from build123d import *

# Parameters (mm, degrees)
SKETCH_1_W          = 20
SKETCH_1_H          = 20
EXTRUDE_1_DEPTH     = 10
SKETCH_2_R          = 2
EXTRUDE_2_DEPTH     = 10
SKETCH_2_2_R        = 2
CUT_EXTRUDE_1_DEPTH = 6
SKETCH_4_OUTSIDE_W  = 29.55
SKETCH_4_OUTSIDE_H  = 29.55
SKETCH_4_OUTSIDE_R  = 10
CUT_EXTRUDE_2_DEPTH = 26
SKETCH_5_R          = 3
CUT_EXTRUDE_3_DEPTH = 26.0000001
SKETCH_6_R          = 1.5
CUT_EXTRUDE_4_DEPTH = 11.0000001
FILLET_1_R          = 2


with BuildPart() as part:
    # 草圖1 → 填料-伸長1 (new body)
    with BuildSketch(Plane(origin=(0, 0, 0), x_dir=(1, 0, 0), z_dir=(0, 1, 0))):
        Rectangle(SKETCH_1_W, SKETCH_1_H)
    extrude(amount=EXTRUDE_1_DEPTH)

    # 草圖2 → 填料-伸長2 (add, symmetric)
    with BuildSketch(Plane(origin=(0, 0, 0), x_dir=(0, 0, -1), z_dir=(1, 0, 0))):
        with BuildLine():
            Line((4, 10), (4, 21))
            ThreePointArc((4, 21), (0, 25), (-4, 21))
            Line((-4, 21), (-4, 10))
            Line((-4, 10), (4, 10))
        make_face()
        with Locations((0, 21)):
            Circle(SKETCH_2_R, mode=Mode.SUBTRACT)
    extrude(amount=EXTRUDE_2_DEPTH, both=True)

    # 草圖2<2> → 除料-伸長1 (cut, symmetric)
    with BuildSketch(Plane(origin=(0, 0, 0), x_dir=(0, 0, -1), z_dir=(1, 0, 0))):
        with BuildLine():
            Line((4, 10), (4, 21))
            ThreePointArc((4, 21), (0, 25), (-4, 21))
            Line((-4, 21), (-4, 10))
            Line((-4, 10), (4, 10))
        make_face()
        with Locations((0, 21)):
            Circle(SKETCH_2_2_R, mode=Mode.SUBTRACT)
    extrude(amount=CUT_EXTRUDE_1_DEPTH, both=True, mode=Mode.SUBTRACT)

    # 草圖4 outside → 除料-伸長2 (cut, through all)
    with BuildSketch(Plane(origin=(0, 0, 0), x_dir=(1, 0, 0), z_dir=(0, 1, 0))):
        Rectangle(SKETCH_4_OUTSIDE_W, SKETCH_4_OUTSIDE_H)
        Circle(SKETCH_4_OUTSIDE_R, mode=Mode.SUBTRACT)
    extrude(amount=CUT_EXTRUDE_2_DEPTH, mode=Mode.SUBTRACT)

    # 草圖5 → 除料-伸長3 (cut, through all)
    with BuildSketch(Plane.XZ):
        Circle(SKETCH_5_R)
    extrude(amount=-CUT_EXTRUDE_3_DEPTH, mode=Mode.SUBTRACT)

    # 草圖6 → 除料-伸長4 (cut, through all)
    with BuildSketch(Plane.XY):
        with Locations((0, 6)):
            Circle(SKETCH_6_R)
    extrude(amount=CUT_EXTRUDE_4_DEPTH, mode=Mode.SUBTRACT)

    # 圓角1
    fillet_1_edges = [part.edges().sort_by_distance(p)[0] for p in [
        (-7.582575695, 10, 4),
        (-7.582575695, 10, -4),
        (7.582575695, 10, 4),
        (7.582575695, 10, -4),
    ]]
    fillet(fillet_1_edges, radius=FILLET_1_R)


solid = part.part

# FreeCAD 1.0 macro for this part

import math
import FreeCAD as App
import Part
import Sketcher
from FreeCAD import Vector
Q = App.Units.Quantity


def edges_at(feature, points):
    """Names of the edges that pass closest to the given points."""
    edges = feature.Shape.Edges
    near = lambda p: min(range(len(edges)), key=lambda i: edges[i].distToShape(Part.Vertex(*p))[0])
    return sorted({f"Edge{near(p) + 1}" for p in points})


def add_polygon(sketch, points):
    """Adds a closed chain of lines whose ends are joined by coincident constraints."""
    first, n = sketch.GeometryCount, len(points)
    for a, b in zip(points, points[1:] + points[:1]):
        sketch.addGeometry(Part.LineSegment(App.Vector(*a, 0), App.Vector(*b, 0)), False)
    for i in range(n):
        sketch.addConstraint(Sketcher.Constraint("Coincident", first + i, 2, first + (i + 1) % n, 1))

doc = App.newDocument("Part")
body = doc.addObject("PartDesign::Body", "Body")

# Sketch on XZ plane
sketch1 = doc.addObject("Sketcher::SketchObject", "Sketch")
body.addObject(sketch1)
sketch1.AttachmentSupport = (doc.XZ_Plane, [""])
sketch1.MapMode = "FlatFace"
add_polygon(sketch1, [(-10, -10), (-10, 10), (10, 10), (10, -10)])  # lines 0-3
sketch1.addConstraint(Sketcher.Constraint("Vertical", 0))
sketch1.addConstraint(Sketcher.Constraint("Horizontal", 1))
sketch1.addConstraint(Sketcher.Constraint("Vertical", 2))
sketch1.addConstraint(Sketcher.Constraint("Horizontal", 3))
sketch1.addConstraint(Sketcher.Constraint("Symmetric", 0, 2, 2, 2, -1, 1))
sketch1.addConstraint(Sketcher.Constraint("Equal", 3, 0))
sketch1.addConstraint(Sketcher.Constraint("DistanceX", 1, 1, 1, 2, Q("20 mm")))
pad1 = doc.addObject("PartDesign::Pad", "Pad")
body.addObject(pad1)
pad1.Profile = sketch1
pad1.Length = 10
pad1.Reversed = True

# Sketch on YZ plane
sketch2 = doc.addObject("Sketcher::SketchObject", "Sketch001")
body.addObject(sketch2)
sketch2.AttachmentSupport = (doc.YZ_Plane, [""])
sketch2.MapMode = "FlatFace"
sketch2.addGeometry(Part.LineSegment(Vector(10, -4, 0), Vector(21, -4, 0)), False)
sketch2.addGeometry(Part.ArcOfCircle(Part.Circle(Vector(21, 0, 0), Vector(0, 0, 1), 4), math.radians(-90), math.radians(90)), False)
sketch2.addGeometry(Part.LineSegment(Vector(21, 4, 0), Vector(10, 4, 0)), False)
sketch2.addGeometry(Part.LineSegment(Vector(10, 4, 0), Vector(10, -4, 0)), False)
sketch2.addGeometry(Part.Circle(Vector(21, 0, 0), Vector(0, 0, 1), 2), False)
sketch2.addConstraint(Sketcher.Constraint("Tangent", 0, 2, 1, 1))
sketch2.addConstraint(Sketcher.Constraint("Tangent", 1, 2, 2, 1))
sketch2.addConstraint(Sketcher.Constraint("Coincident", 2, 2, 3, 1))
sketch2.addConstraint(Sketcher.Constraint("Coincident", 3, 2, 0, 1))
sketch2.addConstraint(Sketcher.Constraint("Horizontal", 0))
sketch2.addConstraint(Sketcher.Constraint("Horizontal", 2))
sketch2.addConstraint(Sketcher.Constraint("Vertical", 3))
sketch2.addConstraint(Sketcher.Constraint("Coincident", 4, 3, 1, 3))
sketch2.addConstraint(Sketcher.Constraint("PointOnObject", 1, 3, -1))
sketch2.addConstraint(Sketcher.Constraint("Diameter", 4, Q("4 mm")))
sketch2.addConstraint(Sketcher.Constraint("Radius", 1, Q("4 mm")))
sketch2.addConstraint(Sketcher.Constraint("DistanceX", 0, 1, 0, 2, Q("11 mm")))
sketch2.addConstraint(Sketcher.Constraint("DistanceX", -1, 1, 1, 3, Q("21 mm")))
pad2 = doc.addObject("PartDesign::Pad", "Pad001")
body.addObject(pad2)
pad2.Profile = sketch2
pad2.Length = 20
pad2.Midplane = True

# Sketch on YZ plane
sketch3 = doc.addObject("Sketcher::SketchObject", "Sketch002")
body.addObject(sketch3)
sketch3.AttachmentSupport = (doc.YZ_Plane, [""])
sketch3.MapMode = "FlatFace"
sketch3.addGeometry(Part.LineSegment(Vector(10, -4, 0), Vector(21, -4, 0)), False)
sketch3.addGeometry(Part.ArcOfCircle(Part.Circle(Vector(21, 0, 0), Vector(0, 0, 1), 4), math.radians(-90), math.radians(90)), False)
sketch3.addGeometry(Part.LineSegment(Vector(21, 4, 0), Vector(10, 4, 0)), False)
sketch3.addGeometry(Part.LineSegment(Vector(10, 4, 0), Vector(10, -4, 0)), False)
sketch3.addGeometry(Part.Circle(Vector(21, 0, 0), Vector(0, 0, 1), 2), False)
sketch3.addConstraint(Sketcher.Constraint("Tangent", 0, 2, 1, 1))
sketch3.addConstraint(Sketcher.Constraint("Tangent", 1, 2, 2, 1))
sketch3.addConstraint(Sketcher.Constraint("Coincident", 2, 2, 3, 1))
sketch3.addConstraint(Sketcher.Constraint("Coincident", 3, 2, 0, 1))
sketch3.addConstraint(Sketcher.Constraint("Horizontal", 0))
sketch3.addConstraint(Sketcher.Constraint("Horizontal", 2))
sketch3.addConstraint(Sketcher.Constraint("Vertical", 3))
sketch3.addConstraint(Sketcher.Constraint("Coincident", 4, 3, 1, 3))
sketch3.addConstraint(Sketcher.Constraint("PointOnObject", 1, 3, -1))
sketch3.addConstraint(Sketcher.Constraint("Diameter", 4, Q("4 mm")))
sketch3.addConstraint(Sketcher.Constraint("Radius", 1, Q("4 mm")))
sketch3.addConstraint(Sketcher.Constraint("DistanceX", 0, 1, 0, 2, Q("11 mm")))
sketch3.addConstraint(Sketcher.Constraint("DistanceX", -1, 1, 1, 3, Q("21 mm")))
pocket1 = doc.addObject("PartDesign::Pocket", "Pocket")
body.addObject(pocket1)
pocket1.Profile = sketch3
pocket1.Length = 12
pocket1.Midplane = True

# Sketch on XZ plane
sketch4 = doc.addObject("Sketcher::SketchObject", "Sketch003")
body.addObject(sketch4)
sketch4.AttachmentSupport = (doc.XZ_Plane, [""])
sketch4.MapMode = "FlatFace"
add_polygon(sketch4, [(-15, -15), (-15, 15), (15, 15), (15, -15)])  # lines 0-3
sketch4.addGeometry(Part.Circle(Vector(0, 0, 0), Vector(0, 0, 1), 10), False)  # 4
sketch4.addConstraint(Sketcher.Constraint("Vertical", 0))
sketch4.addConstraint(Sketcher.Constraint("Horizontal", 1))
sketch4.addConstraint(Sketcher.Constraint("Vertical", 2))
sketch4.addConstraint(Sketcher.Constraint("Horizontal", 3))
sketch4.addConstraint(Sketcher.Constraint("Coincident", 4, 3, -1, 1))
sketch4.addConstraint(Sketcher.Constraint("Symmetric", 0, 2, 2, 2, -1, 1))
sketch4.addConstraint(Sketcher.Constraint("Equal", 3, 0))
sketch4.addConstraint(Sketcher.Constraint("Diameter", 4, Q("20 mm")))
sketch4.addConstraint(Sketcher.Constraint("DistanceX", 1, 1, 1, 2, Q("29.55 mm")))
pocket2 = doc.addObject("PartDesign::Pocket", "Pocket001")
body.addObject(pocket2)
pocket2.Profile = sketch4
pocket2.Type = "ThroughAll"

# Sketch on XZ plane
sketch5 = doc.addObject("Sketcher::SketchObject", "Sketch004")
body.addObject(sketch5)
sketch5.AttachmentSupport = (doc.XZ_Plane, [""])
sketch5.MapMode = "FlatFace"
sketch5.addGeometry(Part.Circle(Vector(0, 0, 0), Vector(0, 0, 1), 3), False)
sketch5.addConstraint(Sketcher.Constraint("Coincident", 0, 3, -1, 1))
sketch5.addConstraint(Sketcher.Constraint("Diameter", 0, Q("6 mm")))
pocket3 = doc.addObject("PartDesign::Pocket", "Pocket002")
body.addObject(pocket3)
pocket3.Profile = sketch5
pocket3.Type = "ThroughAll"

# Sketch on XY plane
sketch6 = doc.addObject("Sketcher::SketchObject", "Sketch005")
body.addObject(sketch6)
sketch6.AttachmentSupport = (doc.XY_Plane, [""])
sketch6.MapMode = "FlatFace"
sketch6.addGeometry(Part.Circle(Vector(0, 6, 0), Vector(0, 0, 1), 1.5), False)
sketch6.addConstraint(Sketcher.Constraint("PointOnObject", 0, 3, -2))
sketch6.addConstraint(Sketcher.Constraint("Diameter", 0, Q("3 mm")))
sketch6.addConstraint(Sketcher.Constraint("DistanceY", -1, 1, 0, 3, Q("6 mm")))
pocket4 = doc.addObject("PartDesign::Pocket", "Pocket003")
body.addObject(pocket4)
pocket4.Profile = sketch6
pocket4.Type = "ThroughAll"
pocket4.Reversed = True
doc.recompute()

fillet = doc.addObject("PartDesign::Fillet", "Fillet")
body.addObject(fillet)
fillet.Base = (pocket4, edges_at(pocket4, [
    (-7.583, 10, 4),
    (-7.583, 10, -4),
    (7.583, 10, 4),
    (7.583, 10, -4),
]))
fillet.Radius = 2

doc.recompute()
